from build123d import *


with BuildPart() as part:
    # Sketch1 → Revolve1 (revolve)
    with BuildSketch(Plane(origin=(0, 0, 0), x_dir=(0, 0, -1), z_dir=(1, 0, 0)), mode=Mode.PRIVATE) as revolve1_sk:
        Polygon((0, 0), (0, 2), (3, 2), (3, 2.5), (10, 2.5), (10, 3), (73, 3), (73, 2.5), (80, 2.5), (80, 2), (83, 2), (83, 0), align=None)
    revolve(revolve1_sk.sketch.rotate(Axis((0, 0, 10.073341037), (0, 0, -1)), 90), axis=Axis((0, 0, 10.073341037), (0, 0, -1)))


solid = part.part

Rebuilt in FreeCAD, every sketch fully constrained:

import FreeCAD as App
import Part
import Sketcher

V = App.Vector
Q = App.Units.Quantity

doc = App.newDocument("Part")
body = doc.addObject("PartDesign::Body", "Body")

# Sketch on YZ plane
sketch1 = body.newObject("Sketcher::SketchObject", "Sketch")
sketch1.AttachmentSupport = (doc.getObject("YZ_Plane"), [""])
sketch1.MapMode = "FlatFace"
sketch1.addGeometry([
    Part.LineSegment(V(2, 0, 0), V(0, 0, 0)),  # 0
    Part.LineSegment(V(0, 0, 0), V(0, -83, 0)),  # 1
    Part.LineSegment(V(0, -83, 0), V(2, -83, 0)),  # 2
    Part.LineSegment(V(2, -83, 0), V(2, -80, 0)),  # 3
    Part.LineSegment(V(2, -80, 0), V(2.5, -80, 0)),  # 4
    Part.LineSegment(V(2.5, -80, 0), V(2.5, -73, 0)),  # 5
    Part.LineSegment(V(2.5, -73, 0), V(3, -73, 0)),  # 6
    Part.LineSegment(V(3, -73, 0), V(3, -10, 0)),  # 7
    Part.LineSegment(V(3, -10, 0), V(2.5, -10, 0)),  # 8
    Part.LineSegment(V(2.5, -10, 0), V(2.5, -3, 0)),  # 9
    Part.LineSegment(V(2.5, -3, 0), V(2, -3, 0)),  # 10
    Part.LineSegment(V(2, -3, 0), V(2, 0, 0)),  # 11
], False)
sketch1.addConstraint([
    Sketcher.Constraint("Coincident", 0, 2, 1, 1),
    Sketcher.Constraint("Coincident", 1, 2, 2, 1),
    Sketcher.Constraint("Coincident", 2, 2, 3, 1),
    Sketcher.Constraint("Coincident", 3, 2, 4, 1),
    Sketcher.Constraint("Coincident", 4, 2, 5, 1),
    Sketcher.Constraint("Coincident", 5, 2, 6, 1),
    Sketcher.Constraint("Coincident", 6, 2, 7, 1),
    Sketcher.Constraint("Coincident", 7, 2, 8, 1),
    Sketcher.Constraint("Coincident", 8, 2, 9, 1),
    Sketcher.Constraint("Coincident", 9, 2, 10, 1),
    Sketcher.Constraint("Coincident", 10, 2, 11, 1),
    Sketcher.Constraint("Coincident", 11, 2, 0, 1),
    Sketcher.Constraint("Horizontal", 0),
    Sketcher.Constraint("Vertical", 1),
    Sketcher.Constraint("Horizontal", 2),
    Sketcher.Constraint("Vertical", 3),
    Sketcher.Constraint("Horizontal", 4),
    Sketcher.Constraint("Vertical", 5),
    Sketcher.Constraint("Horizontal", 6),
    Sketcher.Constraint("Vertical", 7),
    Sketcher.Constraint("Horizontal", 8),
    Sketcher.Constraint("Vertical", 9),
    Sketcher.Constraint("Horizontal", 10),
    Sketcher.Constraint("Vertical", 11),
    Sketcher.Constraint("Coincident", 0, 2, -1, 1),
    Sketcher.Constraint("Vertical", 5, 2, 8, 2),
    Sketcher.Constraint("Vertical", 3, 2, 10, 2),
    Sketcher.Constraint("Equal", 4, 6),
    Sketcher.Constraint("Equal", 5, 9),
    Sketcher.Constraint("Equal", 3, 11),
    Sketcher.Constraint("DistanceX", 0, 2, 0, 1, Q("2 mm")),
    Sketcher.Constraint("DistanceY", 1, 2, 1, 1, Q("83 mm")),
    Sketcher.Constraint("DistanceY", 3, 1, 3, 2, Q("3 mm")),
    Sketcher.Constraint("DistanceY", 5, 1, 5, 2, Q("7 mm")),
    Sketcher.Constraint("DistanceX", 4, 1, 4, 2, Q("0.5 mm")),
])
revolution = body.newObject("PartDesign::Revolution", "Revolution")
revolution.Profile = sketch1
revolution.ReferenceAxis = (sketch1, ["V_Axis"])
revolution.Angle = 360

doc.recompute()
